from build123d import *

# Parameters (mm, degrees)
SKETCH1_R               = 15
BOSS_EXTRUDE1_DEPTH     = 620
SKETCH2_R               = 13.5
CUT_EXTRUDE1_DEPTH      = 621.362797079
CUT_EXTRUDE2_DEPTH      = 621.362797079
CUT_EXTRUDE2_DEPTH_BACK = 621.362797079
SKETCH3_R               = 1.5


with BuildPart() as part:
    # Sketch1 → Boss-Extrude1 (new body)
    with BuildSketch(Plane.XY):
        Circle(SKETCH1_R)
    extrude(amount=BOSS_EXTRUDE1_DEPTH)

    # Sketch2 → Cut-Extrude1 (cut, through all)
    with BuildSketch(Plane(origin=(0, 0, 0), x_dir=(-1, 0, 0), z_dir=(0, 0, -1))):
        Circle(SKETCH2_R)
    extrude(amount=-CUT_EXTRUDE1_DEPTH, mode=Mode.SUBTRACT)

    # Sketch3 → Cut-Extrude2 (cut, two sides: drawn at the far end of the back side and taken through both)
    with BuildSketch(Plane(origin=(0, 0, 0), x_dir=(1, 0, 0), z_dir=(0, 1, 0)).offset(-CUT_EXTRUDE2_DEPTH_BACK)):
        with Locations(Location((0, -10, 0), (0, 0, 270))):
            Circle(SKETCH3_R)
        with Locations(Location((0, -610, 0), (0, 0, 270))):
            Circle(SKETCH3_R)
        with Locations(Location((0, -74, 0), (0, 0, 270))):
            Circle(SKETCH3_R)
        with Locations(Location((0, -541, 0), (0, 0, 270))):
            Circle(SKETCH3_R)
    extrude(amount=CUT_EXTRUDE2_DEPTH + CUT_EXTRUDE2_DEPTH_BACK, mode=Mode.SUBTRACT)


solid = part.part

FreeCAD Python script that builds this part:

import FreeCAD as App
import Part
import Sketcher
from FreeCAD import Vector
Q = App.Units.Quantity

doc = App.newDocument("Part")
params = doc.addObject("Spreadsheet::Sheet", "Params")
for row, (alias, value) in enumerate([
    ("sketch1_diameter", "30 mm"),
    ("pad1_length", "620 mm"),
    ("sketch2_diameter", "27 mm"),
    ("sketch3_diameter", "3 mm"),
], start=1):
    params.set(f"A{row}", alias)
    params.set(f"B{row}", "=" + value)
    params.setAlias(f"B{row}", alias)

body = doc.addObject("PartDesign::Body", "Body")

# Sketch on XY plane
sketch1 = body.newObject("Sketcher::SketchObject", "Sketch")
sketch1.AttachmentSupport = (doc.getObject("XY_Plane"), [""])
sketch1.MapMode = "FlatFace"
sketch1.addGeometry(Part.Circle(Vector(0, 0, 0), Vector(0, 0, 1), 15), False)
sketch1.addConstraint([
    Sketcher.Constraint("Coincident", 0, 3, -1, 1),
    Sketcher.Constraint("Diameter", 0, Q("30 mm")),
])
sketch1.setExpression("Constraints[1]", "Params.sketch1_diameter")
pad1 = body.newObject("PartDesign::Pad", "Pad")
pad1.Profile = sketch1
pad1.setExpression("Length", "Params.pad1_length")

# Sketch on XY plane
sketch2 = body.newObject("Sketcher::SketchObject", "Sketch001")
sketch2.AttachmentSupport = (doc.getObject("XY_Plane"), [""])
sketch2.MapMode = "FlatFace"
sketch2.addGeometry(Part.Circle(Vector(0, 0, 0), Vector(0, 0, 1), 14), False)
sketch2.addConstraint([
    Sketcher.Constraint("Coincident", 0, 3, -1, 1),
    Sketcher.Constraint("Diameter", 0, Q("27 mm")),
])
sketch2.setExpression("Constraints[1]", "Params.sketch2_diameter")
pocket1 = body.newObject("PartDesign::Pocket", "Pocket")
pocket1.Profile = sketch2
pocket1.Type = "ThroughAll"
pocket1.Reversed = True

# Sketch on XZ plane
sketch3 = body.newObject("Sketcher::SketchObject", "Sketch002")
sketch3.AttachmentSupport = (doc.getObject("XZ_Plane"), [""])
sketch3.MapMode = "FlatFace"
sketch3.addGeometry([
    Part.Circle(Vector(0, 10, 0), Vector(0, 0, 1), 1.5),
    Part.Circle(Vector(0, 610, 0), Vector(0, 0, 1), 1.5),
    Part.Circle(Vector(0, 74, 0), Vector(0, 0, 1), 1.5),
    Part.Circle(Vector(0, 541, 0), Vector(0, 0, 1), 1.5),
], False)
sketch3.addConstraint([
    Sketcher.Constraint("Equal", 0, 1),
    Sketcher.Constraint("Equal", 1, 2),
    Sketcher.Constraint("Equal", 2, 3),
    Sketcher.Constraint("PointOnObject", 0, 3, -2),
    Sketcher.Constraint("PointOnObject", 1, 3, -2),
    Sketcher.Constraint("PointOnObject", 2, 3, -2),
    Sketcher.Constraint("PointOnObject", 3, 3, -2),
    Sketcher.Constraint("Diameter", 0, Q("3 mm")),
    Sketcher.Constraint("DistanceY", -1, 1, 0, 3, Q("10 mm")),
    Sketcher.Constraint("DistanceY", -1, 1, 1, 3, Q("610 mm")),
    Sketcher.Constraint("DistanceY", -1, 1, 2, 3, Q("74 mm")),
    Sketcher.Constraint("DistanceY", -1, 1, 3, 3, Q("541 mm")),
])
sketch3.setExpression("Constraints[7]", "Params.sketch3_diameter")
pocket2 = body.newObject("PartDesign::Pocket", "Pocket001")
pocket2.Profile = sketch3
pocket2.Type = "ThroughAll"
pocket2.Midplane = True

doc.recompute()
